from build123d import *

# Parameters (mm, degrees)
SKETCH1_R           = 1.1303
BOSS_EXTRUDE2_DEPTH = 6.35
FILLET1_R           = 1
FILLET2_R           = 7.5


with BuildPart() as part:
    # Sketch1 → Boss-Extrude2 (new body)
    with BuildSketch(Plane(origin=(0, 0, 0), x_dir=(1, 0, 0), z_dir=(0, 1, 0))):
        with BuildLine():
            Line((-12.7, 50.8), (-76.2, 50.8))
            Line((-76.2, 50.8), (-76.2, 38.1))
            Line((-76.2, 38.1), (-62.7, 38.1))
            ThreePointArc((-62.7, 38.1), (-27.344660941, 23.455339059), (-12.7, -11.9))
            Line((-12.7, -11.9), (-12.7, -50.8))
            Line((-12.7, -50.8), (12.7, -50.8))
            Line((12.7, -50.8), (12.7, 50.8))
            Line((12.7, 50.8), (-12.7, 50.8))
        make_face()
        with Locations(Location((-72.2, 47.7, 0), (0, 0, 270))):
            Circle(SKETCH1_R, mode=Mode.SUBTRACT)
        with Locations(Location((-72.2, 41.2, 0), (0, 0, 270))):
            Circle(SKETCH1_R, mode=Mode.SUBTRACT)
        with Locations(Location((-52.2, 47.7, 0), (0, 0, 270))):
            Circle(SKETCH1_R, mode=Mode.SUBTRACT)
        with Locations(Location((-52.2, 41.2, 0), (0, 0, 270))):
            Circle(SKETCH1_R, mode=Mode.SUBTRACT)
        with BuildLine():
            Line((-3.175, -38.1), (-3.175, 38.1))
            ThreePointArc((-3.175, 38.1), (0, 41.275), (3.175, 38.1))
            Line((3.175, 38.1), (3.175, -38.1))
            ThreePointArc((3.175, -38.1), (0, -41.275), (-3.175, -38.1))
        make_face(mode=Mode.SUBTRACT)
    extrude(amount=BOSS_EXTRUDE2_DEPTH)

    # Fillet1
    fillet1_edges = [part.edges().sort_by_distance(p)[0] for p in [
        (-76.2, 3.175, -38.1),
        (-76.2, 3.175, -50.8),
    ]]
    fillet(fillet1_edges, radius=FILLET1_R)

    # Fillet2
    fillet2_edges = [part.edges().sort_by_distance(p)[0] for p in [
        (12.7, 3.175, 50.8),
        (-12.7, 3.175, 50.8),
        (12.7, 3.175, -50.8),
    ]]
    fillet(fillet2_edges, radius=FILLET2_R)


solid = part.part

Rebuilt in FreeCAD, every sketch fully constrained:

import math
import FreeCAD as App
import Part
import Sketcher
from FreeCAD import Vector
Q = App.Units.Quantity


def edges_at(feature, points):
    """Names of the edges that pass closest to the given points."""
    edges = feature.Shape.Edges
    near = lambda p: min(range(len(edges)), key=lambda i: edges[i].distToShape(Part.Vertex(*p))[0])
    return sorted({f"Edge{near(p) + 1}" for p in points})

doc = App.newDocument("Part")
body = doc.addObject("PartDesign::Body", "Body")

sketch1 = body.newObject("Sketcher::SketchObject", "Sketch")
sketch1.AttachmentSupport = (doc.getObject("XZ_Plane"), [""])
sketch1.MapMode = "FlatFace"
sketch1.addGeometry(Part.LineSegment(Vector(-76.2, -50.8, 0), Vector(-76.2, -38.1, 0)), False)
sketch1.addGeometry(Part.LineSegment(Vector(-76.2, -38.1, 0), Vector(-62.7, -38.1, 0)), False)
sketch1.addGeometry(Part.ArcOfCircle(Part.Circle(Vector(-62.7, 11.9, 0), Vector(0, 0, 1), 50), math.radians(-90), math.radians(0)), False)
sketch1.addGeometry(Part.LineSegment(Vector(-12.7, 11.9, 0), Vector(-12.7, 50.8, 0)), False)
sketch1.addGeometry(Part.LineSegment(Vector(-12.7, 50.8, 0), Vector(12.7, 50.8, 0)), False)
sketch1.addGeometry(Part.LineSegment(Vector(12.7, 50.8, 0), Vector(12.7, -50.8, 0)), False)
sketch1.addGeometry(Part.LineSegment(Vector(12.7, -50.8, 0), Vector(-76.2, -50.8, 0)), False)
sketch1.addGeometry(Part.ArcOfCircle(Part.Circle(Vector(0, 38.1, 0), Vector(0, 0, 1), 3.2), math.radians(0), math.radians(180)), False)
sketch1.addGeometry(Part.LineSegment(Vector(-3.2, 38.1, 0), Vector(-3.2, -38.1, 0)), False)
sketch1.addGeometry(Part.ArcOfCircle(Part.Circle(Vector(0, -38.1, 0), Vector(0, 0, 1), 3.2), math.radians(180), math.radians(360)), False)
sketch1.addGeometry(Part.LineSegment(Vector(3.2, -38.1, 0), Vector(3.2, 38.1, 0)), False)
sketch1.addGeometry(Part.Circle(Vector(-72.2, -41.2, 0), Vector(0, 0, 1), 1.1), False)
sketch1.addGeometry(Part.Circle(Vector(-72.2, -47.7, 0), Vector(0, 0, 1), 1.1), False)
sketch1.addGeometry(Part.Circle(Vector(-52.2, -41.2, 0), Vector(0, 0, 1), 1.1), False)
sketch1.addGeometry(Part.Circle(Vector(-52.2, -47.7, 0), Vector(0, 0, 1), 1.1), False)
sketch1.addConstraint(Sketcher.Constraint("Coincident", 0, 2, 1, 1))
sketch1.addConstraint(Sketcher.Constraint("Tangent", 1, 2, 2, 1))
sketch1.addConstraint(Sketcher.Constraint("Tangent", 2, 2, 3, 1))
sketch1.addConstraint(Sketcher.Constraint("Coincident", 3, 2, 4, 1))
sketch1.addConstraint(Sketcher.Constraint("Coincident", 4, 2, 5, 1))
sketch1.addConstraint(Sketcher.Constraint("Coincident", 5, 2, 6, 1))
sketch1.addConstraint(Sketcher.Constraint("Coincident", 6, 2, 0, 1))
sketch1.addConstraint(Sketcher.Constraint("Tangent", 7, 2, 8, 1))
sketch1.addConstraint(Sketcher.Constraint("Tangent", 8, 2, 9, 1))
sketch1.addConstraint(Sketcher.Constraint("Tangent", 9, 2, 10, 1))
sketch1.addConstraint(Sketcher.Constraint("Tangent", 10, 2, 7, 1))
sketch1.addConstraint(Sketcher.Constraint("Vertical", 0))
sketch1.addConstraint(Sketcher.Constraint("Horizontal", 1))
sketch1.addConstraint(Sketcher.Constraint("Vertical", 3))
sketch1.addConstraint(Sketcher.Constraint("Horizontal", 4))
sketch1.addConstraint(Sketcher.Constraint("Vertical", 5))
sketch1.addConstraint(Sketcher.Constraint("Horizontal", 6))
sketch1.addConstraint(Sketcher.Constraint("Vertical", 8))
sketch1.addConstraint(Sketcher.Constraint("Vertical", 10))
sketch1.addConstraint(Sketcher.Constraint("Equal", 11, 12))
sketch1.addConstraint(Sketcher.Constraint("Equal", 12, 13))
sketch1.addConstraint(Sketcher.Constraint("Equal", 13, 14))
sketch1.addConstraint(Sketcher.Constraint("Symmetric", 7, 3, 9, 3, -1, 1))
sketch1.addConstraint(Sketcher.Constraint("Symmetric", 3, 2, 5, 2, -1, 1))
sketch1.addConstraint(Sketcher.Constraint("Horizontal", 11, 3, 13, 3))
sketch1.addConstraint(Sketcher.Constraint("Horizontal", 12, 3, 14, 3))
sketch1.addConstraint(Sketcher.Constraint("Horizontal", 9, 3, 0, 2))
sketch1.addConstraint(Sketcher.Constraint("Vertical", 11, 3, 12, 3))
sketch1.addConstraint(Sketcher.Constraint("Vertical", 13, 3, 14, 3))
sketch1.addConstraint(Sketcher.Constraint("DistanceX", 4, 1, 4, 2, Q("1 in")))
sketch1.addConstraint(Sketcher.Constraint("DistanceY", 5, 2, 5, 1, Q("4 in")))
sketch1.addConstraint(Sketcher.Constraint("DistanceY", 8, 2, 8, 1, Q("3 in")))
sketch1.addConstraint(Sketcher.Constraint("Diameter", 11, Q("0.089 in")))
sketch1.addConstraint(Sketcher.Constraint("DistanceX", 6, 2, 6, 1, Q("3.5 in")))
sketch1.addConstraint(Sketcher.Constraint("Radius", 7, Q("0.125 in")))
sketch1.addConstraint(Sketcher.Constraint("Radius", 2, Q("50 mm")))
sketch1.addConstraint(Sketcher.Constraint("DistanceX", 11, 3, -1, 1, Q("72.2 mm")))
sketch1.addConstraint(Sketcher.Constraint("DistanceY", 11, 3, -1, 1, Q("41.2 mm")))
sketch1.addConstraint(Sketcher.Constraint("DistanceY", 12, 3, -1, 1, Q("47.7 mm")))
sketch1.addConstraint(Sketcher.Constraint("DistanceX", 13, 3, -1, 1, Q("52.2 mm")))
pad1 = body.newObject("PartDesign::Pad", "Pad")
pad1.Profile = sketch1
pad1.Length = Q("0.25 in")
pad1.Reversed = True
doc.recompute()

fillet = body.newObject("PartDesign::Fillet", "Fillet")
fillet.Base = (pad1, edges_at(pad1, [(-76.2, 3.175, -38.1), (-76.2, 3.175, -50.8)]))
fillet.Radius = 1
doc.recompute()

fillet2 = body.newObject("PartDesign::Fillet", "Fillet001")
fillet2.Base = (fillet, edges_at(fillet, [(12.7, 3.175, 50.8), (-12.7, 3.175, 50.8), (12.7, 3.175, -50.8)]))
fillet2.Radius = 7.5

doc.recompute()
